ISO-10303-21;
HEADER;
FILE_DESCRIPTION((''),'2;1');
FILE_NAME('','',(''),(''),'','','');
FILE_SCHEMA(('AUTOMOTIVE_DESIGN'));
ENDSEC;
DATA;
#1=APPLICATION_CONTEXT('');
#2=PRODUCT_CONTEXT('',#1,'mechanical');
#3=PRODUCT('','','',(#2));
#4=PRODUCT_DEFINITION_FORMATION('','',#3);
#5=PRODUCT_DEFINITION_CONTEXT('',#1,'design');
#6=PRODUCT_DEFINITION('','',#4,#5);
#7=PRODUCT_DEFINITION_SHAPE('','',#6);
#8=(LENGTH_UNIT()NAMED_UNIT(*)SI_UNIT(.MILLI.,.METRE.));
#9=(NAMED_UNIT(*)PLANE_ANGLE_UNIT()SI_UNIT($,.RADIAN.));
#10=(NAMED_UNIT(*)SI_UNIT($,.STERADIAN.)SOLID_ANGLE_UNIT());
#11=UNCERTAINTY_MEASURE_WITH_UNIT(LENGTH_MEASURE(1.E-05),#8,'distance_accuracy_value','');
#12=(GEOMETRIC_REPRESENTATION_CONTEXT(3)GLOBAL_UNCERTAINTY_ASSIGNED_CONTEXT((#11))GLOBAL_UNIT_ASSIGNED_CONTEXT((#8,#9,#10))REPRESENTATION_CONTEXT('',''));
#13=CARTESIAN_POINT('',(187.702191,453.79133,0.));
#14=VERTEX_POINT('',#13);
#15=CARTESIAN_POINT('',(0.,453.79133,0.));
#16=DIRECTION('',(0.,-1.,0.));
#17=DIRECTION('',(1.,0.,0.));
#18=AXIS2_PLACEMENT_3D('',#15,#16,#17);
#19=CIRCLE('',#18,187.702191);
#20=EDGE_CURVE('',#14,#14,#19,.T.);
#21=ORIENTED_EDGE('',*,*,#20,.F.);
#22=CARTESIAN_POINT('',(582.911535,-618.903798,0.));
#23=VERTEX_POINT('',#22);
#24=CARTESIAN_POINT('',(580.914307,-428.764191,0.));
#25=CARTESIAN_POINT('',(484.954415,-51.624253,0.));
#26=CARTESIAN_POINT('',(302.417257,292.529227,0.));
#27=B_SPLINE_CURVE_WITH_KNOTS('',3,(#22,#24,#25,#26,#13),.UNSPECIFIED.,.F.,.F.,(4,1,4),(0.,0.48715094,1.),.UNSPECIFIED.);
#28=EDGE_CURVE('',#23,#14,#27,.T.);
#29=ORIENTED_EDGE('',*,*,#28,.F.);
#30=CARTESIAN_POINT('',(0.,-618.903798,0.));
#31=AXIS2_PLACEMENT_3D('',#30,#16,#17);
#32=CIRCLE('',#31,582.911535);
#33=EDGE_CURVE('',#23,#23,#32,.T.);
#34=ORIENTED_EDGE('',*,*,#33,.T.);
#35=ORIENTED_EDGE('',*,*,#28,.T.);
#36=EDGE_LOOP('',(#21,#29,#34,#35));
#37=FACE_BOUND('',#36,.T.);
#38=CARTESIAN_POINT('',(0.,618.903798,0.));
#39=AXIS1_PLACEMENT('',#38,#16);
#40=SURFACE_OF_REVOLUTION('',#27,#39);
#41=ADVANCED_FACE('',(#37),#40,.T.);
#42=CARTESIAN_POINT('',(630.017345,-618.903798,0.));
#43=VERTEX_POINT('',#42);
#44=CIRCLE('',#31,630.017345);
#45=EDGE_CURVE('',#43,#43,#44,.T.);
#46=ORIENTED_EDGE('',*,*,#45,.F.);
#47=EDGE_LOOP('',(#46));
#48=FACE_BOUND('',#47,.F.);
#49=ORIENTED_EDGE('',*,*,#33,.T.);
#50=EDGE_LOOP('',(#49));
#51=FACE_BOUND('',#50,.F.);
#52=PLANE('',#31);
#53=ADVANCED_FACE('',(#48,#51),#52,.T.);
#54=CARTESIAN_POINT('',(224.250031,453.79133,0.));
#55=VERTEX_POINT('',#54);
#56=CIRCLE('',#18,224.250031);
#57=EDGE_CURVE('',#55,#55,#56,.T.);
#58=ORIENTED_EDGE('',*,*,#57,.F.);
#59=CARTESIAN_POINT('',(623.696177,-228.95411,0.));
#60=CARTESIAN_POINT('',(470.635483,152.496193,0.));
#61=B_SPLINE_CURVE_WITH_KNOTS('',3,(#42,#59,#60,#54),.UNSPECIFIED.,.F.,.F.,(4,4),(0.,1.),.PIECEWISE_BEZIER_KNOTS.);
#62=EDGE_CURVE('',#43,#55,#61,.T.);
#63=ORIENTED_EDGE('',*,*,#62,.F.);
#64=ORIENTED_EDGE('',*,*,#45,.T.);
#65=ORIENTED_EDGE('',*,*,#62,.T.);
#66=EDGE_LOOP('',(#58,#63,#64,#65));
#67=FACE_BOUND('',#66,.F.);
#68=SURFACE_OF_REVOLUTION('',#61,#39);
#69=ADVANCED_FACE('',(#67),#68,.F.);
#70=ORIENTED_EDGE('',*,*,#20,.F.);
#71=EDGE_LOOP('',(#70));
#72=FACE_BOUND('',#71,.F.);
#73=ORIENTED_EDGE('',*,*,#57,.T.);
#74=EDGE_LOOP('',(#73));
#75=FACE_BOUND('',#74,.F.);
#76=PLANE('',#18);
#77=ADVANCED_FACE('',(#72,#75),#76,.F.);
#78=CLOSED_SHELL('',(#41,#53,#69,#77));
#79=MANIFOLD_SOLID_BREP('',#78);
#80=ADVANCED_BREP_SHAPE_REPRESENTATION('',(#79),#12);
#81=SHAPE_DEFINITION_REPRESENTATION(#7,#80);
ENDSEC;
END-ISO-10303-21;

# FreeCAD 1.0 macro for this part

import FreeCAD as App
import Part
import Sketcher

doc = App.newDocument("Part")
body = doc.addObject("PartDesign::Body", "Body")

sketch1 = body.newObject("Sketcher::SketchObject", "Sketch")
sketch1.AttachmentSupport = (doc.getObject("XY_Plane"), [""])
sketch1.MapMode = "FlatFace"
sketch1.addGeometry(Part.LineSegment(App.Vector(582.911535, -618.903798, 0), App.Vector(630.017345, -618.903798, 0)), False)
sketch1.addGeometry(Part.BSplineCurve([App.Vector(630.017345, -618.903798, 0), App.Vector(623.696177, -228.95411, 0), App.Vector(470.635483, 152.496193, 0), App.Vector(224.250031, 453.79133, 0)], [4, 4], [0, 1], False, 3, [1, 1, 1, 1], False), False)
sketch1.addGeometry(Part.LineSegment(App.Vector(224.250031, 453.79133, 0), App.Vector(187.702191, 453.79133, 0)), False)
sketch1.addGeometry(Part.BSplineCurve([App.Vector(582.911535, -618.903798, 0), App.Vector(580.914307, -428.764191, 0), App.Vector(484.954415, -51.624253, 0), App.Vector(302.417257, 292.529227, 0), App.Vector(187.702191, 453.79133, 0)], [4, 1, 4], [0, 0.48715094, 1], False, 3, [1, 1, 1, 1, 1], False), False)
sketch1.addConstraint(Sketcher.Constraint("Block", 1))
sketch1.addConstraint(Sketcher.Constraint("Block", 3))
sketch1.addConstraint(Sketcher.Constraint("Coincident", 0, 2, 1, 1))
sketch1.addConstraint(Sketcher.Constraint("Coincident", 1, 2, 2, 1))
sketch1.addConstraint(Sketcher.Constraint("Coincident", 2, 2, 3, 2))
sketch1.addConstraint(Sketcher.Constraint("Coincident", 3, 1, 0, 1))
revolution = body.newObject("PartDesign::Revolution", "Revolution")
revolution.Profile = sketch1
revolution.ReferenceAxis = (sketch1, ["V_Axis"])
revolution.Angle = 360

doc.recompute()
